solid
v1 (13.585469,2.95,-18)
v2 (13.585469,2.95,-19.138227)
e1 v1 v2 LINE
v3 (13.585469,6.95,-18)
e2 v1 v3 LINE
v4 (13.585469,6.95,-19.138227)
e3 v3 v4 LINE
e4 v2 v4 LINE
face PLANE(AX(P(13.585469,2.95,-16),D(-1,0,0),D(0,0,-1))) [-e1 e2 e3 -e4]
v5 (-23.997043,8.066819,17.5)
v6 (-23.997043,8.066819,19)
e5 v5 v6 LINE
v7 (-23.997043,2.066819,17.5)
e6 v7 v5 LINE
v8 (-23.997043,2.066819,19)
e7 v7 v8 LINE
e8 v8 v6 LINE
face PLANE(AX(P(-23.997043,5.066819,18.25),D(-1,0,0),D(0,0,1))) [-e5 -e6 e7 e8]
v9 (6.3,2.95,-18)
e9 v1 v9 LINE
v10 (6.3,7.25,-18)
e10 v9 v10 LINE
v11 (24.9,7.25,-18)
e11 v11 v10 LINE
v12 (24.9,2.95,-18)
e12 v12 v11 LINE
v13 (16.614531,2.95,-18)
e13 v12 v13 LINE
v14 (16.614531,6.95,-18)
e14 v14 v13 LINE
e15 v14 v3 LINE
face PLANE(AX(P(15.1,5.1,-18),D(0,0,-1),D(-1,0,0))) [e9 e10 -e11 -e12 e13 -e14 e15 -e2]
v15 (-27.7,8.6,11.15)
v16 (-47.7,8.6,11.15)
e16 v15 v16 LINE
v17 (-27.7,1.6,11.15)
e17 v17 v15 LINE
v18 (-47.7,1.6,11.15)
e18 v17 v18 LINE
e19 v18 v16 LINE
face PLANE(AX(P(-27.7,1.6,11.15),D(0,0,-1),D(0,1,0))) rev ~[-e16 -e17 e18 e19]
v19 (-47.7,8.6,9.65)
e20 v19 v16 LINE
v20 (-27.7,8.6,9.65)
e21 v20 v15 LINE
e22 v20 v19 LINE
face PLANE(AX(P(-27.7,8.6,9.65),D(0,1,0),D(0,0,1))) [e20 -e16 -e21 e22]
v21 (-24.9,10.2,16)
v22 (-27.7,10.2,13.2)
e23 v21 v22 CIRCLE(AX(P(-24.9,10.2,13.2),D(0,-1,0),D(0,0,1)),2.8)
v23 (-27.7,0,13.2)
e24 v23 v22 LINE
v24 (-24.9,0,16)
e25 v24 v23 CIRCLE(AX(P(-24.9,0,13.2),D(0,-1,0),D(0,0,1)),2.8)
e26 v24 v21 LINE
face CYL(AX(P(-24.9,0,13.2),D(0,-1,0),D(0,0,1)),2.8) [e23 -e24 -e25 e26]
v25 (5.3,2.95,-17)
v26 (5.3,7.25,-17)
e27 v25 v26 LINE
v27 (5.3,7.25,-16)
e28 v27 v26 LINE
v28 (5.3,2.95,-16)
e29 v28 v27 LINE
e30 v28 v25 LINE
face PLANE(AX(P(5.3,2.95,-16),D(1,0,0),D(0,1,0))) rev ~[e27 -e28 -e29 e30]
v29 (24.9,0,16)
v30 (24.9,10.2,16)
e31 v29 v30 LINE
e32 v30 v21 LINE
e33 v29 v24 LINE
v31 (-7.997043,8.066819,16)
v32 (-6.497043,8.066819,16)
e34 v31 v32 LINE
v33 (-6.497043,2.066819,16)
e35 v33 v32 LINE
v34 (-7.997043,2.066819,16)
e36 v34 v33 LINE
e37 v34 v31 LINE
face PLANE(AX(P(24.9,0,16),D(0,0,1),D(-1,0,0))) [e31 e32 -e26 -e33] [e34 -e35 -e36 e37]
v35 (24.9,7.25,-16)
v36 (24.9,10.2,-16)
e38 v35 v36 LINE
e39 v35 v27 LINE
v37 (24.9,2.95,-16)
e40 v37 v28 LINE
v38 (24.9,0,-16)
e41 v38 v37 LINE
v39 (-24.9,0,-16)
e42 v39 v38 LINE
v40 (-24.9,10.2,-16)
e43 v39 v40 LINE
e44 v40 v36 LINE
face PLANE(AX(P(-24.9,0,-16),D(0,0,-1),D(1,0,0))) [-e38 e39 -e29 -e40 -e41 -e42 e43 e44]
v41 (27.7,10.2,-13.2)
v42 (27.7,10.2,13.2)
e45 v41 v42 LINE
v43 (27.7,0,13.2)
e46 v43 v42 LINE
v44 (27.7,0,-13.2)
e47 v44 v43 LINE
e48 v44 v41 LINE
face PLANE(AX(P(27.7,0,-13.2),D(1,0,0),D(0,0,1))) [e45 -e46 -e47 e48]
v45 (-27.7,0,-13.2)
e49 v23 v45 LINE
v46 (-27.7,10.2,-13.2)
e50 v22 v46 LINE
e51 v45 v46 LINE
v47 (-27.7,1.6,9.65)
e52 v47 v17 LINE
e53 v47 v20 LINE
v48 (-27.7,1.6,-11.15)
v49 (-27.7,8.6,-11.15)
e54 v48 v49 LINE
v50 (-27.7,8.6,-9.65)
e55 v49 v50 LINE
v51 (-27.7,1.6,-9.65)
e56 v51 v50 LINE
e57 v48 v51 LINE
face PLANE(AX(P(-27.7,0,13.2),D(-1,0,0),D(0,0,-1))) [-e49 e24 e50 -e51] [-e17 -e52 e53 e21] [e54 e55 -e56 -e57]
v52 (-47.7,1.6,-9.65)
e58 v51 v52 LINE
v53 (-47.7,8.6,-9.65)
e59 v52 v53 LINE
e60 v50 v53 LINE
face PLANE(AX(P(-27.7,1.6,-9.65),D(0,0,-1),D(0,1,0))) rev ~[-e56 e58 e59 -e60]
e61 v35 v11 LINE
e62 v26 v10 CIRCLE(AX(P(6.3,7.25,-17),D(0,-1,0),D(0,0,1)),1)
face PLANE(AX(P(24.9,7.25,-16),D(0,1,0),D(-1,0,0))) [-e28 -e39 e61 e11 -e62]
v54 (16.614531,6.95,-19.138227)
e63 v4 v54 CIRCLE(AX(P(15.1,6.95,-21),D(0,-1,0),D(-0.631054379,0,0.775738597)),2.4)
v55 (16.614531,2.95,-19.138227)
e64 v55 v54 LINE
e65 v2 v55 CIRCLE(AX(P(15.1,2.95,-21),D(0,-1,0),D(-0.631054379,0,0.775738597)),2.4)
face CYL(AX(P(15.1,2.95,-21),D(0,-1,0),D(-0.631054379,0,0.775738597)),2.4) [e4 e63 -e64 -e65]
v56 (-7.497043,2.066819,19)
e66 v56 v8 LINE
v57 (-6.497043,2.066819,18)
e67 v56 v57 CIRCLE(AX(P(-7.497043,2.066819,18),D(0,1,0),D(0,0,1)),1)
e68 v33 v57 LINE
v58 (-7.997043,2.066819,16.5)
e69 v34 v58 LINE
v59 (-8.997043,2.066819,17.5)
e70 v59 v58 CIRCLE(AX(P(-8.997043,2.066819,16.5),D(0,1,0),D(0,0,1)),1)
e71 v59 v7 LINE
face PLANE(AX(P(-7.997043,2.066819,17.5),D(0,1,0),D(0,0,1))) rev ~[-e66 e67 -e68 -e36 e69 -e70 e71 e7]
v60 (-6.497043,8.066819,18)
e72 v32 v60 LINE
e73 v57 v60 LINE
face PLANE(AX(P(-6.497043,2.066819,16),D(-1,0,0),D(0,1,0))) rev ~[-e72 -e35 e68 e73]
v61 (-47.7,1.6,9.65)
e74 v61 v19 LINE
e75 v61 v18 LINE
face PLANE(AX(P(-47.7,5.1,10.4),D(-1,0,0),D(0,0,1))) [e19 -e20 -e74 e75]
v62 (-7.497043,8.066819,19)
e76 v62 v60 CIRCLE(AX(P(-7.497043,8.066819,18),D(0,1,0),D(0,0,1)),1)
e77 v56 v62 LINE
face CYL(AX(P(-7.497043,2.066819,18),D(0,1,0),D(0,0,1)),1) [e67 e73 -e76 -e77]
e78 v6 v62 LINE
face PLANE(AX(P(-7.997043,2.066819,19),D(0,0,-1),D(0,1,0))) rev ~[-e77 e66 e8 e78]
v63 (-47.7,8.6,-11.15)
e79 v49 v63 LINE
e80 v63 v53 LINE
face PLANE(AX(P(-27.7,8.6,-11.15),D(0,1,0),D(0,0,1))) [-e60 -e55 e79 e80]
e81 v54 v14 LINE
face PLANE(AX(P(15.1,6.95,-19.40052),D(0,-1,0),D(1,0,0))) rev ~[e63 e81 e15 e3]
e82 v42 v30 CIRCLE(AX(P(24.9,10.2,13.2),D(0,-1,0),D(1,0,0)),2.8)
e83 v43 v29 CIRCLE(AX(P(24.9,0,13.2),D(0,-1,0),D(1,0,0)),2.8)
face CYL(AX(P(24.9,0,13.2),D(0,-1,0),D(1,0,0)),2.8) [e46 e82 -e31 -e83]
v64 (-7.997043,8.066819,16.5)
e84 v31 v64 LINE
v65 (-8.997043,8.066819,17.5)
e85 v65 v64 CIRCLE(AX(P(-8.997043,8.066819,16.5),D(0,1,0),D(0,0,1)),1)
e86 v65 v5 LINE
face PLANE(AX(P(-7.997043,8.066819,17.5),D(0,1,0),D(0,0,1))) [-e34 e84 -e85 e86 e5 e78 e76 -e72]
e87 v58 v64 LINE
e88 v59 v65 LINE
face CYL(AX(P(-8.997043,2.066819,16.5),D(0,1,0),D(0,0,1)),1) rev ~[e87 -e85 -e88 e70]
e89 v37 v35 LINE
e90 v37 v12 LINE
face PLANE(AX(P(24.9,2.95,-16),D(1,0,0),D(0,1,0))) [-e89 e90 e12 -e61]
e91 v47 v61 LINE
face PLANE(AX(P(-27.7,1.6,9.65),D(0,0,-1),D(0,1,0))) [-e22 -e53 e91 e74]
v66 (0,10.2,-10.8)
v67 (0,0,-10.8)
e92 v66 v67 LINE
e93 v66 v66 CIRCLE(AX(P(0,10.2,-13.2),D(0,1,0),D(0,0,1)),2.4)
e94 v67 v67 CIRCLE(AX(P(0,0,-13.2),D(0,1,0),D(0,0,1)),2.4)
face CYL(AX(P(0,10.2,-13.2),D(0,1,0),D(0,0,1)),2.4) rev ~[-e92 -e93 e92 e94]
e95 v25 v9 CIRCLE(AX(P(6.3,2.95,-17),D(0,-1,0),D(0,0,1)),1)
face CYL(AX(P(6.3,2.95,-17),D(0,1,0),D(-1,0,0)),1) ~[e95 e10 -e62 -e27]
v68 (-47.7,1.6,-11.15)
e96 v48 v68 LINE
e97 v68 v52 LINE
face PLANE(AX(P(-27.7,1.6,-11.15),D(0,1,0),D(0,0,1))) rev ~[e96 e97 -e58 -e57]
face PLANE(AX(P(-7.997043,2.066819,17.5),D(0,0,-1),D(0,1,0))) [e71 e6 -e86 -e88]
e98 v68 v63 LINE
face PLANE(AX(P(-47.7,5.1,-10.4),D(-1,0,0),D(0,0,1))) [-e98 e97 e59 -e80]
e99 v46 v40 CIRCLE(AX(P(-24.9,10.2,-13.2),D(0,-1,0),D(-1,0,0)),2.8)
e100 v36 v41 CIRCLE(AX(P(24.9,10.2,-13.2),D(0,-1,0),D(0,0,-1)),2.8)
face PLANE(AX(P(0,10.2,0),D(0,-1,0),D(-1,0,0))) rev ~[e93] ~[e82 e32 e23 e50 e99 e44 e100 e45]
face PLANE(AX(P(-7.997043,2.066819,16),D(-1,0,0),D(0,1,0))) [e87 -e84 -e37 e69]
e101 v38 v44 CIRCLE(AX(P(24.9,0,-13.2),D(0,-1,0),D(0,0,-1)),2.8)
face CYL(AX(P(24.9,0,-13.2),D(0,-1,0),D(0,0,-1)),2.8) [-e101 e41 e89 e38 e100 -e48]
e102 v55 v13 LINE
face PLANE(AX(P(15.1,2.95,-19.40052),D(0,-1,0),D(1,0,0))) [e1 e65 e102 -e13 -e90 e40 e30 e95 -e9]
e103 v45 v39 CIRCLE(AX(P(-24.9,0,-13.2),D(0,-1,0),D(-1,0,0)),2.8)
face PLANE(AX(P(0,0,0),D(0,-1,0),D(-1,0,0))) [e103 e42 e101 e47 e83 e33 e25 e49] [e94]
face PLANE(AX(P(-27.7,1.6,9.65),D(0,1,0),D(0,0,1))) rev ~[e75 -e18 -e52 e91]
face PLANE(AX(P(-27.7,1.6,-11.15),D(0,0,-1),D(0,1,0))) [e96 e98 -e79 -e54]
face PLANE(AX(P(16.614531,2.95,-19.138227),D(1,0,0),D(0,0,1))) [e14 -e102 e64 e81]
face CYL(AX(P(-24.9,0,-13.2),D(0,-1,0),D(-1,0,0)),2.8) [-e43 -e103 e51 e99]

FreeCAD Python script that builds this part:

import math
import FreeCAD as App
import Part
import Sketcher


def edges_at(feature, points):
    """Names of the edges that pass closest to the given points."""
    edges = feature.Shape.Edges
    near = lambda p: min(range(len(edges)), key=lambda i: edges[i].distToShape(Part.Vertex(*p))[0])
    return sorted({f"Edge{near(p) + 1}" for p in points})


def add_polygon(sketch, points):
    """Adds a closed chain of lines whose ends are joined by coincident constraints."""
    first, n = sketch.GeometryCount, len(points)
    for a, b in zip(points, points[1:] + points[:1]):
        sketch.addGeometry(Part.LineSegment(App.Vector(*a, 0), App.Vector(*b, 0)), False)
    for i in range(n):
        sketch.addConstraint(Sketcher.Constraint("Coincident", first + i, 2, first + (i + 1) % n, 1))

doc = App.newDocument("Part")
body = doc.addObject("PartDesign::Body", "Body")

sketch1 = body.newObject("Sketcher::SketchObject", "Sketch")
sketch1.AttachmentSupport = (doc.getObject("XZ_Plane"), [""])
sketch1.MapMode = "FlatFace"
sketch1.addGeometry(Part.LineSegment(App.Vector(24.9, -16, 0), App.Vector(-24.9, -16, 0)), False)
sketch1.addGeometry(Part.ArcOfCircle(Part.Circle(App.Vector(-24.9, -13.2, 0), App.Vector(0, 0, 1), 2.8), math.radians(-180), math.radians(-90)), False)
sketch1.addGeometry(Part.LineSegment(App.Vector(-27.7, -13.2, 0), App.Vector(-27.7, 13.2, 0)), False)
sketch1.addGeometry(Part.ArcOfCircle(Part.Circle(App.Vector(-24.9, 13.2, 0), App.Vector(0, 0, 1), 2.8), math.radians(90), math.radians(180)), False)
sketch1.addGeometry(Part.LineSegment(App.Vector(-24.9, 16, 0), App.Vector(24.9, 16, 0)), False)
sketch1.addGeometry(Part.ArcOfCircle(Part.Circle(App.Vector(24.9, 13.2, 0), App.Vector(0, 0, 1), 2.8), math.radians(0), math.radians(90)), False)
sketch1.addGeometry(Part.LineSegment(App.Vector(27.7, 13.2, 0), App.Vector(27.7, -13.2, 0)), False)
sketch1.addGeometry(Part.ArcOfCircle(Part.Circle(App.Vector(24.9, -13.2, 0), App.Vector(0, 0, 1), 2.8), math.radians(-90), math.radians(0)), False)
sketch1.addConstraint(Sketcher.Constraint("Tangent", 0, 2, 1, 2))
sketch1.addConstraint(Sketcher.Constraint("Tangent", 1, 1, 2, 1))
sketch1.addConstraint(Sketcher.Constraint("Tangent", 2, 2, 3, 2))
sketch1.addConstraint(Sketcher.Constraint("Tangent", 3, 1, 4, 1))
sketch1.addConstraint(Sketcher.Constraint("Tangent", 4, 2, 5, 2))
sketch1.addConstraint(Sketcher.Constraint("Tangent", 5, 1, 6, 1))
sketch1.addConstraint(Sketcher.Constraint("Tangent", 6, 2, 7, 2))
sketch1.addConstraint(Sketcher.Constraint("Tangent", 7, 1, 0, 1))
sketch1.addConstraint(Sketcher.Constraint("Horizontal", 0))
sketch1.addConstraint(Sketcher.Constraint("Vertical", 2))
sketch1.addConstraint(Sketcher.Constraint("Horizontal", 4))
sketch1.addConstraint(Sketcher.Constraint("Vertical", 6))
sketch1.addConstraint(Sketcher.Constraint("Equal", 1, 3))
sketch1.addConstraint(Sketcher.Constraint("Equal", 3, 5))
sketch1.addConstraint(Sketcher.Constraint("Equal", 5, 7))
sketch1.addConstraint(Sketcher.Constraint("Symmetric", 1, 3, 5, 3, -1, 1))
sketch1.addConstraint(Sketcher.Constraint("Radius", 1, 2.8))
sketch1.addConstraint(Sketcher.Constraint("DistanceX", 0, 2, 0, 1, 49.8))
sketch1.addConstraint(Sketcher.Constraint("DistanceY", 2, 1, 2, 2, 26.4))
pad1 = body.newObject("PartDesign::Pad", "Pad")
pad1.Profile = sketch1
pad1.Length = 10.2
pad1.Reversed = True

sketch2 = body.newObject("Sketcher::SketchObject", "Sketch001")
sketch2.AttachmentSupport = (doc.getObject("XY_Plane"), [""])
sketch2.MapMode = "FlatFace"
sketch2.AttachmentOffset = App.Placement(App.Vector(0, 0, -16), App.Rotation())
add_polygon(sketch2, [(24.9, 7.2), (24.9, 3), (5.3, 3), (5.3, 7.2)])
sketch2.addConstraint(Sketcher.Constraint("Vertical", 0))
sketch2.addConstraint(Sketcher.Constraint("Horizontal", 1))
sketch2.addConstraint(Sketcher.Constraint("Vertical", 2))
sketch2.addConstraint(Sketcher.Constraint("Horizontal", 3))
sketch2.addConstraint(Sketcher.Constraint("DistanceX", 1, 2, 1, 1, 19.6))
sketch2.addConstraint(Sketcher.Constraint("DistanceY", 0, 2, 0, 1, 4.3))
sketch2.addConstraint(Sketcher.Constraint("DistanceX", -1, 1, 0, 2, 24.9))
sketch2.addConstraint(Sketcher.Constraint("DistanceY", -1, 1, 0, 2, 2.95))
pad2 = body.newObject("PartDesign::Pad", "Pad001")
pad2.Profile = sketch2
pad2.Length = 2
pad2.Reversed = True
doc.recompute()

fillet = body.newObject("PartDesign::Fillet", "Fillet")
fillet.Base = (pad2, edges_at(pad2, [(5.3, 5.1, -18)]))
fillet.Radius = 1

sketch3 = body.newObject("Sketcher::SketchObject", "Sketch002")
sketch3.AttachmentSupport = (doc.getObject("YZ_Plane"), [""])
sketch3.MapMode = "FlatFace"
sketch3.AttachmentOffset = App.Placement(App.Vector(0, 0, -27.7), App.Rotation())
add_polygon(sketch3, [(8.6, -11.2), (1.6, -11.2), (1.6, -9.7), (8.6, -9.7)])
sketch3.addConstraint(Sketcher.Constraint("Horizontal", 0))
sketch3.addConstraint(Sketcher.Constraint("Vertical", 1))
sketch3.addConstraint(Sketcher.Constraint("Horizontal", 2))
sketch3.addConstraint(Sketcher.Constraint("Vertical", 3))
sketch3.addConstraint(Sketcher.Constraint("DistanceX", 0, 2, 0, 1, 7.0))
sketch3.addConstraint(Sketcher.Constraint("DistanceY", 1, 1, 1, 2, 1.5))
sketch3.addConstraint(Sketcher.Constraint("DistanceX", -1, 1, 0, 2, 1.6))
sketch3.addConstraint(Sketcher.Constraint("DistanceY", 0, 2, -1, 1, 11.15))
pad3 = body.newObject("PartDesign::Pad", "Pad002")
pad3.Profile = sketch3
pad3.Length = 20
pad3.Reversed = True

sketch4 = body.newObject("Sketcher::SketchObject", "Sketch003")
sketch4.AttachmentSupport = (doc.getObject("YZ_Plane"), [""])
sketch4.MapMode = "FlatFace"
sketch4.AttachmentOffset = App.Placement(App.Vector(0, 0, -27.7), App.Rotation())
add_polygon(sketch4, [(8.6, 9.7), (1.6, 9.7), (1.6, 11.2), (8.6, 11.2)])
sketch4.addConstraint(Sketcher.Constraint("Horizontal", 0))
sketch4.addConstraint(Sketcher.Constraint("Vertical", 1))
sketch4.addConstraint(Sketcher.Constraint("Horizontal", 2))
sketch4.addConstraint(Sketcher.Constraint("Vertical", 3))
sketch4.addConstraint(Sketcher.Constraint("DistanceX", 0, 2, 0, 1, 7.0))
sketch4.addConstraint(Sketcher.Constraint("DistanceY", 1, 1, 1, 2, 1.5))
sketch4.addConstraint(Sketcher.Constraint("DistanceX", -1, 1, 0, 2, 1.6))
sketch4.addConstraint(Sketcher.Constraint("DistanceY", -1, 1, 0, 2, 9.65))
pad4 = body.newObject("PartDesign::Pad", "Pad003")
pad4.Profile = sketch4
pad4.Length = 20
pad4.Reversed = True

sketch5 = body.newObject("Sketcher::SketchObject", "Sketch004")
sketch5.AttachmentSupport = (doc.getObject("XY_Plane"), [""])
sketch5.MapMode = "FlatFace"
sketch5.AttachmentOffset = App.Placement(App.Vector(0, 0, 16), App.Rotation())
add_polygon(sketch5, [(-8, 8.1), (-8, 2.1), (-6.5, 2.1), (-6.5, 8.1)])
sketch5.addConstraint(Sketcher.Constraint("Vertical", 0))
sketch5.addConstraint(Sketcher.Constraint("Horizontal", 1))
sketch5.addConstraint(Sketcher.Constraint("Vertical", 2))
sketch5.addConstraint(Sketcher.Constraint("Horizontal", 3))
sketch5.addConstraint(Sketcher.Constraint("DistanceY", 0, 2, 0, 1, 6.0))
sketch5.addConstraint(Sketcher.Constraint("DistanceX", 1, 1, 1, 2, 1.5))
sketch5.addConstraint(Sketcher.Constraint("DistanceY", -1, 1, 0, 2, 2.066819))
sketch5.addConstraint(Sketcher.Constraint("DistanceX", 0, 2, -1, 1, 7.997043))
pad5 = body.newObject("PartDesign::Pad", "Pad004")
pad5.Profile = sketch5
pad5.Length = 3

sketch6 = body.newObject("Sketcher::SketchObject", "Sketch005")
sketch6.AttachmentSupport = (doc.getObject("YZ_Plane"), [""])
sketch6.MapMode = "FlatFace"
sketch6.AttachmentOffset = App.Placement(App.Vector(0, 0, -7.997043), App.Rotation())
add_polygon(sketch6, [(8.1, 17.5), (2.1, 17.5), (2.1, 19), (8.1, 19)])
sketch6.addConstraint(Sketcher.Constraint("Horizontal", 0))
sketch6.addConstraint(Sketcher.Constraint("Vertical", 1))
sketch6.addConstraint(Sketcher.Constraint("Horizontal", 2))
sketch6.addConstraint(Sketcher.Constraint("Vertical", 3))
sketch6.addConstraint(Sketcher.Constraint("DistanceX", 0, 2, 0, 1, 6.0))
sketch6.addConstraint(Sketcher.Constraint("DistanceY", 1, 1, 1, 2, 1.5))
sketch6.addConstraint(Sketcher.Constraint("DistanceY", -1, 1, 1, 2, 19.0))
sketch6.addConstraint(Sketcher.Constraint("DistanceX", -1, 1, 0, 2, 2.066819))
pad6 = body.newObject("PartDesign::Pad", "Pad005")
pad6.Profile = sketch6
pad6.Length = 16
pad6.Reversed = True
doc.recompute()

fillet2 = body.newObject("PartDesign::Fillet", "Fillet001")
fillet2.Base = (pad6, edges_at(pad6, [(-7.997, 5.067, 17.5)]))
fillet2.Radius = 1
doc.recompute()

fillet3 = body.newObject("PartDesign::Fillet", "Fillet002")
fillet3.Base = (fillet2, edges_at(fillet2, [(-6.497, 5.067, 19)]))
fillet3.Radius = 1

sketch7 = body.newObject("Sketcher::SketchObject", "Sketch006")
sketch7.AttachmentSupport = (doc.getObject("XZ_Plane"), [""])
sketch7.MapMode = "FlatFace"
sketch7.AttachmentOffset = App.Placement(App.Vector(0, 0, -2.95), App.Rotation())
sketch7.addGeometry(Part.LineSegment(App.Vector(16.6, -19.1, 0), App.Vector(16.6, -16, 0)), False)
sketch7.addGeometry(Part.LineSegment(App.Vector(16.6, -16, 0), App.Vector(13.6, -16, 0)), False)
sketch7.addGeometry(Part.LineSegment(App.Vector(13.6, -16, 0), App.Vector(13.6, -19.1, 0)), False)
sketch7.addGeometry(Part.ArcOfCircle(Part.Circle(App.Vector(15.1, -21, 0), App.Vector(0, 0, 1), 2.4), math.radians(129), math.radians(411)), False)
sketch7.addConstraint(Sketcher.Constraint("Coincident", 0, 2, 1, 1))
sketch7.addConstraint(Sketcher.Constraint("Coincident", 1, 2, 2, 1))
sketch7.addConstraint(Sketcher.Constraint("Coincident", 2, 2, 3, 1))
sketch7.addConstraint(Sketcher.Constraint("Coincident", 3, 2, 0, 1))
sketch7.addConstraint(Sketcher.Constraint("Vertical", 0))
sketch7.addConstraint(Sketcher.Constraint("Horizontal", 1))
sketch7.addConstraint(Sketcher.Constraint("Vertical", 2))
sketch7.addConstraint(Sketcher.Constraint("Horizontal", 2, 2, 3, 2))
sketch7.addConstraint(Sketcher.Constraint("Radius", 3, 2.4))
sketch7.addConstraint(Sketcher.Constraint("DistanceY", 3, 3, -1, 1, 21.0))
sketch7.addConstraint(Sketcher.Constraint("DistanceY", 0, 2, -1, 1, 16.0))
sketch7.addConstraint(Sketcher.Constraint("DistanceX", -1, 1, 3, 3, 15.1))
sketch7.addConstraint(Sketcher.Constraint("DistanceX", 1, 2, 1, 1, 3.029061))
pad7 = body.newObject("PartDesign::Pad", "Pad006")
pad7.Profile = sketch7
pad7.Length = 4
pad7.Reversed = True

sketch8 = body.newObject("Sketcher::SketchObject", "Sketch007")
sketch8.AttachmentSupport = (doc.getObject("XZ_Plane"), [""])
sketch8.MapMode = "FlatFace"
sketch8.AttachmentOffset = App.Placement(App.Vector(0, 0, -10.2), App.Rotation())
sketch8.addGeometry(Part.Circle(App.Vector(0, -13.2, 0), App.Vector(0, 0, 1), 2.4), False)
sketch8.addConstraint(Sketcher.Constraint("PointOnObject", 0, 3, -2))
sketch8.addConstraint(Sketcher.Constraint("Diameter", 0, 4.8))
sketch8.addConstraint(Sketcher.Constraint("DistanceY", 0, 3, -1, 1, 13.2))
pocket1 = body.newObject("PartDesign::Pocket", "Pocket")
pocket1.Profile = sketch8
pocket1.Length = 19
pocket1.Reversed = True

doc.recompute()
